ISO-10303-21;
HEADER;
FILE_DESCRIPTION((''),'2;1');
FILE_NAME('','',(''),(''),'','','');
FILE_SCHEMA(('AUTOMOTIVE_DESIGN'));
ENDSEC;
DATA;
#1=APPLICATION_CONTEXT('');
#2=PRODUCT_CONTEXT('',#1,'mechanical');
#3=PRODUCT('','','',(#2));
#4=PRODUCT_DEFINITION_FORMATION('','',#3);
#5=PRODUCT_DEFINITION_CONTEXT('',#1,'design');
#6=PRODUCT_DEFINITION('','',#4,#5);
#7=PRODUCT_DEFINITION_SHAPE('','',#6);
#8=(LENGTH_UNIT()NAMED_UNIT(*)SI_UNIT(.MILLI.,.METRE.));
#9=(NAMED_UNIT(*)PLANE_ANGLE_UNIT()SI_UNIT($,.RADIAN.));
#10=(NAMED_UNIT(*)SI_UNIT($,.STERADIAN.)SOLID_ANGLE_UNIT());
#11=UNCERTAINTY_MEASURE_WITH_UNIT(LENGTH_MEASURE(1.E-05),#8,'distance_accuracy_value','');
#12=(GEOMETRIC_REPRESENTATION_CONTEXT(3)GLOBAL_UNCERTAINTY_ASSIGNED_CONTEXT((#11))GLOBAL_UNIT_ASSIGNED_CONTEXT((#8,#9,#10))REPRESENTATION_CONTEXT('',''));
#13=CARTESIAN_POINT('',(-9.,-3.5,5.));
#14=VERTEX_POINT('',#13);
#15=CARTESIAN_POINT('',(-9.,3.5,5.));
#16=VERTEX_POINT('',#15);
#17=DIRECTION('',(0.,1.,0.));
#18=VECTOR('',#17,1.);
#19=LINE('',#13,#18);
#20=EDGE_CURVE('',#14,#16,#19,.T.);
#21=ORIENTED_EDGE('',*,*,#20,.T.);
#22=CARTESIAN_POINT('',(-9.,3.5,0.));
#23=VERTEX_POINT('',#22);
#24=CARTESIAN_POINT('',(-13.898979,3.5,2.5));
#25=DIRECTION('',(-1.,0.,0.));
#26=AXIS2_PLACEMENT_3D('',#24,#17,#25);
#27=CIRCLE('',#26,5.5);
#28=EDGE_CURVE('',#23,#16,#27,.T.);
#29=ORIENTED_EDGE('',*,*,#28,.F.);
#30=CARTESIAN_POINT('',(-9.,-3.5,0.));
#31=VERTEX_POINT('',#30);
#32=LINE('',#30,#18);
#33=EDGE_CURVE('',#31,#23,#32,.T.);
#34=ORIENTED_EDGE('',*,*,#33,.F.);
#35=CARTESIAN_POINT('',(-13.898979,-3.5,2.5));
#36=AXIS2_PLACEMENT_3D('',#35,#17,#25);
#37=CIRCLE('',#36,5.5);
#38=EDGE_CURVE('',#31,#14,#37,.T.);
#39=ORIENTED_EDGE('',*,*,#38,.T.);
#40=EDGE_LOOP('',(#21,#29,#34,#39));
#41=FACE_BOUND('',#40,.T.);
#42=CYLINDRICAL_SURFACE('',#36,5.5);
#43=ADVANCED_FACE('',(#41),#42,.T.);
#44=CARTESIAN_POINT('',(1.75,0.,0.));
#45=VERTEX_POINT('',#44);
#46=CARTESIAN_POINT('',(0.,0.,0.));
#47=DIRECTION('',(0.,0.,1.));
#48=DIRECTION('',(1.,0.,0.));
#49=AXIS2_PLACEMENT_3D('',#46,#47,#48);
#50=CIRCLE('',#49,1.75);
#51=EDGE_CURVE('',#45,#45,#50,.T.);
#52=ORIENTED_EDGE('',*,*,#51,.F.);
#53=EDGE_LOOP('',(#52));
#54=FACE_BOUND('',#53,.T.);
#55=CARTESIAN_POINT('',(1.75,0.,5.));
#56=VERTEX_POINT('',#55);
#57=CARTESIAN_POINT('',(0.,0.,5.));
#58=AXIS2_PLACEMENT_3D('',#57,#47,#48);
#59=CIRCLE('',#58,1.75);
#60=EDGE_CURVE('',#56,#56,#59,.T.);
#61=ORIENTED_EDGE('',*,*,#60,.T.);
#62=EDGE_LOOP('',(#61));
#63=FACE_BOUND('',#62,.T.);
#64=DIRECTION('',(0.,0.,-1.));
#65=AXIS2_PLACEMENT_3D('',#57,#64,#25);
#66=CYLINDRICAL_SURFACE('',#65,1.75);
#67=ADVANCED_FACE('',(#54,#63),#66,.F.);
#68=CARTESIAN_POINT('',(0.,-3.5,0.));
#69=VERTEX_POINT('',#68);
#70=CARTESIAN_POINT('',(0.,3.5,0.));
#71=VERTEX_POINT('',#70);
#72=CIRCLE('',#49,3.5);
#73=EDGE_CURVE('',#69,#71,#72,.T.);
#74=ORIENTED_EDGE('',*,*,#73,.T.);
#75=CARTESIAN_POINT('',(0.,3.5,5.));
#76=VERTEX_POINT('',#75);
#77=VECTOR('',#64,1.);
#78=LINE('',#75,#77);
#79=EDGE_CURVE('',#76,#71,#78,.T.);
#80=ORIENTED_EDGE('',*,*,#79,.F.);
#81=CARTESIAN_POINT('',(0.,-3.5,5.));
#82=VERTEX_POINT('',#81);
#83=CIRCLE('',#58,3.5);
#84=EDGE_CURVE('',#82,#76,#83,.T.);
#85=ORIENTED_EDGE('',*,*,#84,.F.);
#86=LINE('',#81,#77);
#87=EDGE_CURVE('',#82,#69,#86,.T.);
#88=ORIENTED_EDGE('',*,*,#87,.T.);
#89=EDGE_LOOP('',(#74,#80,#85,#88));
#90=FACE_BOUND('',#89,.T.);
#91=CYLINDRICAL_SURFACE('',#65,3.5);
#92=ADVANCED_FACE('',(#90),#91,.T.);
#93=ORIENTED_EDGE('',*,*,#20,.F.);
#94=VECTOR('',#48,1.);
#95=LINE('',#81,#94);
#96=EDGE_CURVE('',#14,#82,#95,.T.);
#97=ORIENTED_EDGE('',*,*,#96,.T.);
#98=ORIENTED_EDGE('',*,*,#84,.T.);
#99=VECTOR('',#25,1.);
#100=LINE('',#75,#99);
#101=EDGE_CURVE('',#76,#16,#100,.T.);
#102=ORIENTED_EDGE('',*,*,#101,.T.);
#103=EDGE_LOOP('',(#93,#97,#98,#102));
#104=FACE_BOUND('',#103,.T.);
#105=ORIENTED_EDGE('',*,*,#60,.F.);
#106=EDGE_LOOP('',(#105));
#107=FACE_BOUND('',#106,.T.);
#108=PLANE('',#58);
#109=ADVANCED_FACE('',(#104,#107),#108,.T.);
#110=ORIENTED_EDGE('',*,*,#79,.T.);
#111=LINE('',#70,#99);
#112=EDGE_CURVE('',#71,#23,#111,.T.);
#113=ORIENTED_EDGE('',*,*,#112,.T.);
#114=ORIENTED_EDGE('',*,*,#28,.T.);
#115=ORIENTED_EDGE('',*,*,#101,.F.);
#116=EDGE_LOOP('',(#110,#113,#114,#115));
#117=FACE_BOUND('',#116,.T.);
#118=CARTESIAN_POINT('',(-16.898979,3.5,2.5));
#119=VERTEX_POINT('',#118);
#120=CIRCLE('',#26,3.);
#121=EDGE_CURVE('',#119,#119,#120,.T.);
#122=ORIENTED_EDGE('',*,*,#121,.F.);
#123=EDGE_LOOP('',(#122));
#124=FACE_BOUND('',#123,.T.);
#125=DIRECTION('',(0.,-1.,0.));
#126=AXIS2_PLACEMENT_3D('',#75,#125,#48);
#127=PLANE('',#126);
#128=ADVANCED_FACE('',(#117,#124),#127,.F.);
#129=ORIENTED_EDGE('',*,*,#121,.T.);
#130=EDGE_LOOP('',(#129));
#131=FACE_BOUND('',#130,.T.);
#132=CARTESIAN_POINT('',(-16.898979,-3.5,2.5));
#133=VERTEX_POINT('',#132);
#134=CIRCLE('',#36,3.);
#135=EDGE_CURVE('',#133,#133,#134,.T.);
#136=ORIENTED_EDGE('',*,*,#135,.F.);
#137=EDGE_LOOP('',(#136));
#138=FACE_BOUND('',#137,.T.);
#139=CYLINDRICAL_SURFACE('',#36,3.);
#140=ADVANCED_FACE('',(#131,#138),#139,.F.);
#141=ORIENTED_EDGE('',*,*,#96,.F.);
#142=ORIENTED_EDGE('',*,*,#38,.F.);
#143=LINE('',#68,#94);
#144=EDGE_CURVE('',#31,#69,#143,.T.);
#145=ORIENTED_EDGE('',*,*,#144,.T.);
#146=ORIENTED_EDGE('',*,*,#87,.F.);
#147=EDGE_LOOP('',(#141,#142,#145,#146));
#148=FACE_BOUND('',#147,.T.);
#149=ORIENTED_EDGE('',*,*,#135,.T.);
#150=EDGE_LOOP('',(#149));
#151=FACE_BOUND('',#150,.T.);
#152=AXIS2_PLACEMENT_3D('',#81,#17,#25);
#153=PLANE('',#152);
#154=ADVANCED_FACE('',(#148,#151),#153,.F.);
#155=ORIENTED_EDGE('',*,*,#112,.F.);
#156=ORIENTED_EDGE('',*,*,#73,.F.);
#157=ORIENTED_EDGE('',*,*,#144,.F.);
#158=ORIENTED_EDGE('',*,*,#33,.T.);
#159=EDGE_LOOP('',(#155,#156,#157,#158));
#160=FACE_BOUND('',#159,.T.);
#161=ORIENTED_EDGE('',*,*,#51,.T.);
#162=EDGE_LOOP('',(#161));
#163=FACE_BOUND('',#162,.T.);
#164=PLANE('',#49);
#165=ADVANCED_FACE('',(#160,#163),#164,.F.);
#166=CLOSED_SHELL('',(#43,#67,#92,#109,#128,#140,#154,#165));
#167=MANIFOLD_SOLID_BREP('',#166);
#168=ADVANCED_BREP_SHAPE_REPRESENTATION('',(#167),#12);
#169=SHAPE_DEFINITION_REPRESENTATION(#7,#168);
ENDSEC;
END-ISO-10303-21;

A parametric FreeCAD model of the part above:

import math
import FreeCAD as App
import Part
import Sketcher
from FreeCAD import Vector
Q = App.Units.Quantity

doc = App.newDocument("Part")
params = doc.addObject("Spreadsheet::Sheet", "Params")
for row, (alias, value) in enumerate([
    ("sketch1_diameter", "3.5 mm"),
    ("sketch1_radius", "3.5 mm"),
    ("sketch1_width", "6 mm"),
    ("pad1_length", "5 mm"),
    ("sketch2_diameter", "6 mm"),
    ("sketch2_radius", "5.5 mm"),
    ("sketch2_width", "3 mm"),
    ("sketch2_height", "5 mm"),
    ("pad2_length", "7 mm"),
], start=1):
    params.set(f"A{row}", alias)
    params.set(f"B{row}", "=" + value)
    params.setAlias(f"B{row}", alias)

body = doc.addObject("PartDesign::Body", "Body")

# Sketch on XY plane
sketch1 = doc.addObject("Sketcher::SketchObject", "Sketch")
body.addObject(sketch1)
sketch1.AttachmentSupport = (doc.XY_Plane, [""])
sketch1.MapMode = "FlatFace"
sketch1.addGeometry(Part.LineSegment(Vector(0, 3.5, 0), Vector(-6, 3.5, 0)), False)
sketch1.addGeometry(Part.LineSegment(Vector(-6, 3.5, 0), Vector(-6, -3.5, 0)), False)
sketch1.addGeometry(Part.LineSegment(Vector(-6, -3.5, 0), Vector(0, -3.5, 0)), False)
sketch1.addGeometry(Part.ArcOfCircle(Part.Circle(Vector(0, 0, 0), Vector(0, 0, 1), 3.5), math.radians(-90), math.radians(90)), False)
sketch1.addGeometry(Part.Circle(Vector(0, 0, 0), Vector(0, 0, 1), 1.75), False)
sketch1.addConstraint(Sketcher.Constraint("Coincident", 0, 2, 1, 1))
sketch1.addConstraint(Sketcher.Constraint("Coincident", 1, 2, 2, 1))
sketch1.addConstraint(Sketcher.Constraint("Tangent", 2, 2, 3, 1))
sketch1.addConstraint(Sketcher.Constraint("Tangent", 3, 2, 0, 1))
sketch1.addConstraint(Sketcher.Constraint("Horizontal", 0))
sketch1.addConstraint(Sketcher.Constraint("Vertical", 1))
sketch1.addConstraint(Sketcher.Constraint("Horizontal", 2))
sketch1.addConstraint(Sketcher.Constraint("Coincident", 3, 3, -1, 1))
sketch1.addConstraint(Sketcher.Constraint("Coincident", 4, 3, -1, 1))
sketch1.addConstraint(Sketcher.Constraint("Diameter", 4, Q("3.5 mm")))
sketch1.addConstraint(Sketcher.Constraint("Radius", 3, Q("3.5 mm")))
sketch1.addConstraint(Sketcher.Constraint("DistanceX", 0, 2, 0, 1, Q("6 mm")))
sketch1.setExpression("Constraints[9]", "Params.sketch1_diameter")
sketch1.setExpression("Constraints[10]", "Params.sketch1_radius")
sketch1.setExpression("Constraints[11]", "Params.sketch1_width")
pad1 = doc.addObject("PartDesign::Pad", "Pad")
body.addObject(pad1)
pad1.Profile = sketch1
pad1.setExpression("Length", "Params.pad1_length")

# Sketch on XZ plane
sketch2 = doc.addObject("Sketcher::SketchObject", "Sketch001")
body.addObject(sketch2)
sketch2.AttachmentSupport = (doc.XZ_Plane, [""])
sketch2.MapMode = "FlatFace"
sketch2.AttachmentOffset = App.Placement(Vector(0, 0, -3.5), App.Rotation())
sketch2.addGeometry(Part.LineSegment(Vector(-6, 5, 0), Vector(-6, 0, 0)), False)
sketch2.addGeometry(Part.LineSegment(Vector(-6, 0, 0), Vector(-9, 0, 0)), False)
sketch2.addGeometry(Part.ArcOfCircle(Part.Circle(Vector(-13.898979, 2.5, 0), Vector(0, 0, 1), 5.5), math.radians(27.035692), math.radians(332.964308)), False)
sketch2.addGeometry(Part.LineSegment(Vector(-9, 5, 0), Vector(-6, 5, 0)), False)
sketch2.addGeometry(Part.Circle(Vector(-13.898979, 2.5, 0), Vector(0, 0, 1), 3), False)
sketch2.addConstraint(Sketcher.Constraint("Coincident", 0, 2, 1, 1))
sketch2.addConstraint(Sketcher.Constraint("Coincident", 1, 2, 2, 2))
sketch2.addConstraint(Sketcher.Constraint("Coincident", 2, 1, 3, 1))
sketch2.addConstraint(Sketcher.Constraint("Coincident", 3, 2, 0, 1))
sketch2.addConstraint(Sketcher.Constraint("Vertical", 0))
sketch2.addConstraint(Sketcher.Constraint("Horizontal", 1))
sketch2.addConstraint(Sketcher.Constraint("Horizontal", 3))
sketch2.addConstraint(Sketcher.Constraint("Coincident", 4, 3, 2, 3))
sketch2.addConstraint(Sketcher.Constraint("PointOnObject", 0, 2, -1))
sketch2.addConstraint(Sketcher.Constraint("Vertical", 1, 2, 2, 1))
sketch2.addConstraint(Sketcher.Constraint("Diameter", 4, Q("6 mm")))
sketch2.addConstraint(Sketcher.Constraint("Radius", 2, Q("5.5 mm")))
sketch2.addConstraint(Sketcher.Constraint("DistanceX", 1, 2, 1, 1, Q("3 mm")))
sketch2.addConstraint(Sketcher.Constraint("DistanceY", 0, 2, 0, 1, Q("5 mm")))
sketch2.addConstraint(Sketcher.Constraint("DistanceX", 0, 2, -1, 1, Q("6 mm")))
sketch2.setExpression("Constraints[10]", "Params.sketch2_diameter")
sketch2.setExpression("Constraints[11]", "Params.sketch2_radius")
sketch2.setExpression("Constraints[12]", "Params.sketch2_width")
sketch2.setExpression("Constraints[13]", "Params.sketch2_height")
pad2 = doc.addObject("PartDesign::Pad", "Pad001")
body.addObject(pad2)
pad2.Profile = sketch2
pad2.setExpression("Length", "Params.pad2_length")

doc.recompute()
